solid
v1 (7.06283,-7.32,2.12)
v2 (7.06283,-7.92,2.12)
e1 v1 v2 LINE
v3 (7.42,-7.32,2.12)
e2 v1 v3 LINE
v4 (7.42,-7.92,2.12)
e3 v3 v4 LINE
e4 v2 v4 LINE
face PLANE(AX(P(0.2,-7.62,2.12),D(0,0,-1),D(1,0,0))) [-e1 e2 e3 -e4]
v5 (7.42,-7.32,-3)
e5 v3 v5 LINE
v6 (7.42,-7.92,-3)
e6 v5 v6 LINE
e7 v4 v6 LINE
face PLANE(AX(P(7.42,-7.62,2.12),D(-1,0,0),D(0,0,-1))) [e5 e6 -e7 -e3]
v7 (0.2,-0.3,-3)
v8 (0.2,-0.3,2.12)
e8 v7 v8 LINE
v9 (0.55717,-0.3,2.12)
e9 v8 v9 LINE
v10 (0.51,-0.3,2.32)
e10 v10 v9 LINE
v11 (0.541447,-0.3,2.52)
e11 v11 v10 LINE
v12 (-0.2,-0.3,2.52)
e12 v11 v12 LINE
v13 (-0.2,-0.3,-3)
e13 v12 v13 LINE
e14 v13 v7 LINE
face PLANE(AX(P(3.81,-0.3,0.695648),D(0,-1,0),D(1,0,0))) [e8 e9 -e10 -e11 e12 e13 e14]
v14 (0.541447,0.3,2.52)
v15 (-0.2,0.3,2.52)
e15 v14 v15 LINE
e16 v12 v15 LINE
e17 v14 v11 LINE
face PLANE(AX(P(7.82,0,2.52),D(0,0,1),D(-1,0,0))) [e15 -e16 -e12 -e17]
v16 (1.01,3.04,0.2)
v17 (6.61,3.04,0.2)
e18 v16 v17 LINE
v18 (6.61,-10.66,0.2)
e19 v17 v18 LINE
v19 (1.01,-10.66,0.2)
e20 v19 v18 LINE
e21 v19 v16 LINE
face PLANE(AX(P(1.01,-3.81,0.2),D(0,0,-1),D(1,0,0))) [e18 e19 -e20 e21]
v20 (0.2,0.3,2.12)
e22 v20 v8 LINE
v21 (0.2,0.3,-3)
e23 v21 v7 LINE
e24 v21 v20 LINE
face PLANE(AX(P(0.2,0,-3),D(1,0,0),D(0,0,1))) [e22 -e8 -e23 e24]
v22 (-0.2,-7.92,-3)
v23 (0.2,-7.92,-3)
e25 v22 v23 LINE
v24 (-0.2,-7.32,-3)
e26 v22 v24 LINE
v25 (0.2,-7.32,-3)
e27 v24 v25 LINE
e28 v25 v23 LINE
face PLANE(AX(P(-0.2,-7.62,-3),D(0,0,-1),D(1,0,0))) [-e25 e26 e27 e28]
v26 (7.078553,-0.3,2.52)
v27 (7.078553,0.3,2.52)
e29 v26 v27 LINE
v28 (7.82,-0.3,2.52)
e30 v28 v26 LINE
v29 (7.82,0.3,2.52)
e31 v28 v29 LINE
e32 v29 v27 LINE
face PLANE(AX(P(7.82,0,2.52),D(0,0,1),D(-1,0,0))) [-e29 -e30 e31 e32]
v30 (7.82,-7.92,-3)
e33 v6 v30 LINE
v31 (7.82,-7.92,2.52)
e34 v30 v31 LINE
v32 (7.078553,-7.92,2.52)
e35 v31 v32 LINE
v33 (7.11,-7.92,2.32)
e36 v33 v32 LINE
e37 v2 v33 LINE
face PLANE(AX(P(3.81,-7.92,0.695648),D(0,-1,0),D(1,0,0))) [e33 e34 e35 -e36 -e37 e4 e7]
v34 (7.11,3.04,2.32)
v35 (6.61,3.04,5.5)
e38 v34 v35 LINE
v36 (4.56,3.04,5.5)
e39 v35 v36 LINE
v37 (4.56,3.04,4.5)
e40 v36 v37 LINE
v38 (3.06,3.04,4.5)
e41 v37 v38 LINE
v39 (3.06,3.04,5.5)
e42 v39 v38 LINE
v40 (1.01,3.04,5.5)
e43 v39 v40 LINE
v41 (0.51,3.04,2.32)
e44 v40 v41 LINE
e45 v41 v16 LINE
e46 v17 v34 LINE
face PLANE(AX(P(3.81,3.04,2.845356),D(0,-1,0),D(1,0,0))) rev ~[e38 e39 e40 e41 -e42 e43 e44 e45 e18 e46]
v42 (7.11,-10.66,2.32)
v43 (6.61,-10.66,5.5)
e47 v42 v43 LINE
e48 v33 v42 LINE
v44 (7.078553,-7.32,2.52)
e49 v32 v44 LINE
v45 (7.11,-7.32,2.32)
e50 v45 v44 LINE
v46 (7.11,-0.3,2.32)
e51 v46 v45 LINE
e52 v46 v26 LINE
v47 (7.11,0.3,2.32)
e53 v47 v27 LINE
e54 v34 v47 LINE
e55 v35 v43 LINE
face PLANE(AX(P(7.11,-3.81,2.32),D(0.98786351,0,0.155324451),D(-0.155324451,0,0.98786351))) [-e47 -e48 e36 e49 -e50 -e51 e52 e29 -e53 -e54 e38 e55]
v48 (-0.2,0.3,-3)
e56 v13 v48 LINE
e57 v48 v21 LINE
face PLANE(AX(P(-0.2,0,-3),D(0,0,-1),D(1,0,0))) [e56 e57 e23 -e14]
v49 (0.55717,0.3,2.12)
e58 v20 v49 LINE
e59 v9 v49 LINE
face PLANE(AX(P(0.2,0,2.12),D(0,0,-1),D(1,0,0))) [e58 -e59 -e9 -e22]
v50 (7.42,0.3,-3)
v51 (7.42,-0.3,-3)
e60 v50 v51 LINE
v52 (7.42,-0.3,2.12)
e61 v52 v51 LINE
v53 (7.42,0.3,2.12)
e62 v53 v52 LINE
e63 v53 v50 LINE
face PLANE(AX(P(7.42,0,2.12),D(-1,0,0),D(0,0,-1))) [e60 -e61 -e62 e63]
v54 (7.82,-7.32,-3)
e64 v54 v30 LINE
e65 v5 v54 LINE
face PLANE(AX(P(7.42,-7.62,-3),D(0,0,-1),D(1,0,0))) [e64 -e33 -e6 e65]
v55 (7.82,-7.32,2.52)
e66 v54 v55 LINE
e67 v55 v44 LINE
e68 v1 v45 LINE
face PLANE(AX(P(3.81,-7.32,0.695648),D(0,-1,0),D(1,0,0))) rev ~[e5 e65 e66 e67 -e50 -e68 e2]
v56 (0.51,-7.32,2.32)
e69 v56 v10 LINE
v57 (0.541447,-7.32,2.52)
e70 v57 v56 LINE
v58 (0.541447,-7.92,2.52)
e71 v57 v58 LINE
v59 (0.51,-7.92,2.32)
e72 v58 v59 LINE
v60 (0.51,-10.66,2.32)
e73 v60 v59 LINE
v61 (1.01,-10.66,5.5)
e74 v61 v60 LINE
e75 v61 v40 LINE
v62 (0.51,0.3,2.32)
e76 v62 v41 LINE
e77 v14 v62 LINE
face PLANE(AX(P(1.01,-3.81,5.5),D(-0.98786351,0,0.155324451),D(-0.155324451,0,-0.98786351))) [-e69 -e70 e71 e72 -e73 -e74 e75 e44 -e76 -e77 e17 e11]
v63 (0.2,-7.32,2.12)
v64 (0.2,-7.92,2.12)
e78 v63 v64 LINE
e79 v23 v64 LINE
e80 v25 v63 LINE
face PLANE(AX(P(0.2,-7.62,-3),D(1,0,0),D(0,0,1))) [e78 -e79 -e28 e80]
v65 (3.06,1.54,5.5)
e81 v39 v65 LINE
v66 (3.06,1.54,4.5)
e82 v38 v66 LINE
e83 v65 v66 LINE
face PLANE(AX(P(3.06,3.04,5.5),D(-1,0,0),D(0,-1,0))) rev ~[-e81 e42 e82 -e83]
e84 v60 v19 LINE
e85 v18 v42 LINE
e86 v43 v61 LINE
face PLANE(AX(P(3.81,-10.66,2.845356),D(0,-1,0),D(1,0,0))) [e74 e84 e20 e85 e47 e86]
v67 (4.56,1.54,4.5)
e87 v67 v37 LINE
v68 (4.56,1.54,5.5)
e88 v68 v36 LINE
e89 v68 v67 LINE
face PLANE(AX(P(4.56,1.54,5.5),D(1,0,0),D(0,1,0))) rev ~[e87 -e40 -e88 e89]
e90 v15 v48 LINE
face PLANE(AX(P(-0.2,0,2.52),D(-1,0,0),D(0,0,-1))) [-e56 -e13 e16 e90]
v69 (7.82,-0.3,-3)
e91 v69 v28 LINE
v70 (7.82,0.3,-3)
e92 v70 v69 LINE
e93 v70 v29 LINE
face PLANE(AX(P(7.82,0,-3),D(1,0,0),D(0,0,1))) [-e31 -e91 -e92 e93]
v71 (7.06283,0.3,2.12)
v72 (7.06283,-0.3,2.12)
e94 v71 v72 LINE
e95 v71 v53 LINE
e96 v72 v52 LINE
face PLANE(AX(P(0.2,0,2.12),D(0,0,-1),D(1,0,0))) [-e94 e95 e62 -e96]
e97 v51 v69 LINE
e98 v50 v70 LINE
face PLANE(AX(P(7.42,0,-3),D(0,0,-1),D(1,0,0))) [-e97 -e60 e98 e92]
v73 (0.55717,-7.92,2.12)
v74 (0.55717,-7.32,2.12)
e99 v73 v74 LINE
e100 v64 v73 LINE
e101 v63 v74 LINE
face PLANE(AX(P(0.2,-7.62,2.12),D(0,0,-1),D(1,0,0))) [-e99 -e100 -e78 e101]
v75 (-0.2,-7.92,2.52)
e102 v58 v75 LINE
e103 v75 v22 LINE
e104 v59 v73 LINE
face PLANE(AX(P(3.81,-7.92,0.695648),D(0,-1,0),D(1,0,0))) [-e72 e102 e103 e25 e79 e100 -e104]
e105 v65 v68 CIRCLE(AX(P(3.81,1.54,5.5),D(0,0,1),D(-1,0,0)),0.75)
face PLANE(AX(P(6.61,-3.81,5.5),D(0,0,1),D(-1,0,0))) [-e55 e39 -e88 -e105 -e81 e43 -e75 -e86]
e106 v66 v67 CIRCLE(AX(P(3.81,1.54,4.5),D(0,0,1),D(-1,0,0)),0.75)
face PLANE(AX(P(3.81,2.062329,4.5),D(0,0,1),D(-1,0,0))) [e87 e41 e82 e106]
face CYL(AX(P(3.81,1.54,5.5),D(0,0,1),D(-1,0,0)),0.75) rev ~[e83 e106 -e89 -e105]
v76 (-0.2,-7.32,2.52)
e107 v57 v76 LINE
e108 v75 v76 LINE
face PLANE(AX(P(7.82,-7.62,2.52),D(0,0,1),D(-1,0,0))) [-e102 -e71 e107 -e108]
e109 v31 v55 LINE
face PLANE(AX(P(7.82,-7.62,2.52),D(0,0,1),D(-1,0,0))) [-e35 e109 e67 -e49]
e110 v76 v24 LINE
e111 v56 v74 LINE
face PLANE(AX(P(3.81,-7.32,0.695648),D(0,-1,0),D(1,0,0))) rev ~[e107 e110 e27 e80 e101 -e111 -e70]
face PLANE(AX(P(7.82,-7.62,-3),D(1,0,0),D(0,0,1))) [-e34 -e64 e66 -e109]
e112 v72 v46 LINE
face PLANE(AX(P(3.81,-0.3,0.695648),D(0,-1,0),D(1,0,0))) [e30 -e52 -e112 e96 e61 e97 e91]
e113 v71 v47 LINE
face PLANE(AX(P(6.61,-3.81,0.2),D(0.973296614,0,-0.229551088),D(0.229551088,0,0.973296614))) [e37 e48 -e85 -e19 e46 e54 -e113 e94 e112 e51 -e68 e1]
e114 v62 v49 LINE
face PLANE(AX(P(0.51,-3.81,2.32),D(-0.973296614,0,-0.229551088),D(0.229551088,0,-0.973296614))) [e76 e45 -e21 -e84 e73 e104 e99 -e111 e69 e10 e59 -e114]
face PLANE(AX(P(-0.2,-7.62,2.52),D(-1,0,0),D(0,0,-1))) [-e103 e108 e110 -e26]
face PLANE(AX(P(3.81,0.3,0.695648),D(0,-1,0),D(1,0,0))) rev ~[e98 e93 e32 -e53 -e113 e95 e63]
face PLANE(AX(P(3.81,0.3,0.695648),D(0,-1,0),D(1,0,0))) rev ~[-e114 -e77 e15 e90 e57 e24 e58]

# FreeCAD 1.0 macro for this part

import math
import FreeCAD as App
import Part
import Sketcher
from FreeCAD import Vector

doc = App.newDocument("Part")
body = doc.addObject("PartDesign::Body", "Body")

# Sketch on XZ plane
sketch1 = doc.addObject("Sketcher::SketchObject", "Sketch")
body.addObject(sketch1)
sketch1.AttachmentSupport = (doc.XZ_Plane, [""])
sketch1.MapMode = "FlatFace"
sketch1.AttachmentOffset = App.Placement(Vector(0, 0, 7.62), App.Rotation())
sketch1.addGeometry(Part.LineSegment(Vector(-0.2, -3, 0), Vector(0.2, -3, 0)), False)
sketch1.addGeometry(Part.LineSegment(Vector(0.2, -3, 0), Vector(0.2, 2.12, 0)), False)
sketch1.addGeometry(Part.LineSegment(Vector(0.2, 2.12, 0), Vector(7.42, 2.12, 0)), False)
sketch1.addGeometry(Part.LineSegment(Vector(7.42, 2.12, 0), Vector(7.42, -3, 0)), False)
sketch1.addGeometry(Part.LineSegment(Vector(7.42, -3, 0), Vector(7.82, -3, 0)), False)
sketch1.addGeometry(Part.LineSegment(Vector(7.82, -3, 0), Vector(7.82, 2.52, 0)), False)
sketch1.addGeometry(Part.LineSegment(Vector(7.82, 2.52, 0), Vector(-0.2, 2.52, 0)), False)
sketch1.addGeometry(Part.LineSegment(Vector(-0.2, 2.52, 0), Vector(-0.2, -3, 0)), False)
sketch1.addConstraint(Sketcher.Constraint("Coincident", 0, 2, 1, 1))
sketch1.addConstraint(Sketcher.Constraint("Coincident", 1, 2, 2, 1))
sketch1.addConstraint(Sketcher.Constraint("Coincident", 2, 2, 3, 1))
sketch1.addConstraint(Sketcher.Constraint("Coincident", 3, 2, 4, 1))
sketch1.addConstraint(Sketcher.Constraint("Coincident", 4, 2, 5, 1))
sketch1.addConstraint(Sketcher.Constraint("Coincident", 5, 2, 6, 1))
sketch1.addConstraint(Sketcher.Constraint("Coincident", 6, 2, 7, 1))
sketch1.addConstraint(Sketcher.Constraint("Coincident", 7, 2, 0, 1))
sketch1.addConstraint(Sketcher.Constraint("Horizontal", 0))
sketch1.addConstraint(Sketcher.Constraint("Vertical", 1))
sketch1.addConstraint(Sketcher.Constraint("Horizontal", 2))
sketch1.addConstraint(Sketcher.Constraint("Vertical", 3))
sketch1.addConstraint(Sketcher.Constraint("Horizontal", 4))
sketch1.addConstraint(Sketcher.Constraint("Vertical", 5))
sketch1.addConstraint(Sketcher.Constraint("Horizontal", 6))
sketch1.addConstraint(Sketcher.Constraint("Vertical", 7))
sketch1.addConstraint(Sketcher.Constraint("Horizontal", 0, 2, 3, 2))
sketch1.addConstraint(Sketcher.Constraint("Equal", 0, 4))
sketch1.addConstraint(Sketcher.Constraint("DistanceX", 0, 1, 0, 2, 0.4))
sketch1.addConstraint(Sketcher.Constraint("DistanceY", 0, 2, -1, 1, 3.0))
sketch1.addConstraint(Sketcher.Constraint("DistanceX", 2, 1, 2, 2, 7.22))
sketch1.addConstraint(Sketcher.Constraint("DistanceY", 1, 1, 1, 2, 5.12))
sketch1.addConstraint(Sketcher.Constraint("DistanceY", 5, 1, 5, 2, 5.52))
sketch1.addConstraint(Sketcher.Constraint("DistanceX", -1, 1, 0, 2, 0.2))
pad1 = doc.addObject("PartDesign::Pad", "Pad")
body.addObject(pad1)
pad1.Profile = sketch1
pad1.Length = 0.6
pad1.Midplane = True
body2 = doc.addObject("PartDesign::Body", "Body001")

# Sketch on XZ plane
sketch2 = doc.addObject("Sketcher::SketchObject", "Sketch001")
body2.addObject(sketch2)
sketch2.AttachmentSupport = (doc.getObject("XZ_Plane001"), [""])
sketch2.MapMode = "FlatFace"
sketch2.AttachmentOffset = App.Placement(Vector(0, 0, 3.81), App.Rotation())
sketch2.addGeometry(Part.LineSegment(Vector(1, 0.2, 0), Vector(6.6, 0.2, 0)), False)
sketch2.addGeometry(Part.LineSegment(Vector(6.6, 0.2, 0), Vector(7.1, 2.3, 0)), False)
sketch2.addGeometry(Part.LineSegment(Vector(7.1, 2.3, 0), Vector(6.6, 5.5, 0)), False)
sketch2.addGeometry(Part.LineSegment(Vector(6.6, 5.5, 0), Vector(1, 5.5, 0)), False)
sketch2.addGeometry(Part.LineSegment(Vector(1, 5.5, 0), Vector(0.5, 2.3, 0)), False)
sketch2.addGeometry(Part.LineSegment(Vector(0.5, 2.3, 0), Vector(1, 0.2, 0)), False)
sketch2.addConstraint(Sketcher.Constraint("Coincident", 0, 2, 1, 1))
sketch2.addConstraint(Sketcher.Constraint("Coincident", 1, 2, 2, 1))
sketch2.addConstraint(Sketcher.Constraint("Coincident", 2, 2, 3, 1))
sketch2.addConstraint(Sketcher.Constraint("Coincident", 3, 2, 4, 1))
sketch2.addConstraint(Sketcher.Constraint("Coincident", 4, 2, 5, 1))
sketch2.addConstraint(Sketcher.Constraint("Coincident", 5, 2, 0, 1))
sketch2.addConstraint(Sketcher.Constraint("Horizontal", 0))
sketch2.addConstraint(Sketcher.Constraint("Horizontal", 3))
sketch2.addConstraint(Sketcher.Constraint("Horizontal", 1, 2, 4, 2))
sketch2.addConstraint(Sketcher.Constraint("Vertical", 0, 2, 2, 2))
sketch2.addConstraint(Sketcher.Constraint("Vertical", 3, 2, 5, 2))
sketch2.addConstraint(Sketcher.Constraint("Equal", 2, 4))
sketch2.addConstraint(Sketcher.Constraint("DistanceX", 0, 1, 0, 2, 5.6))
sketch2.addConstraint(Sketcher.Constraint("DistanceY", -1, 1, 0, 2, 0.2))
sketch2.addConstraint(Sketcher.Constraint("DistanceY", -1, 1, 2, 2, 5.5))
sketch2.addConstraint(Sketcher.Constraint("DistanceX", 0, 2, 1, 2, 0.5))
sketch2.addConstraint(Sketcher.Constraint("DistanceX", -1, 1, 0, 2, 6.61))
sketch2.addConstraint(Sketcher.Constraint("DistanceY", -1, 1, 1, 2, 2.32))
pad2 = doc.addObject("PartDesign::Pad", "Pad001")
body2.addObject(pad2)
pad2.Profile = sketch2
pad2.Length = 13.7
pad2.Midplane = True

# Sketch on XY plane
sketch3 = doc.addObject("Sketcher::SketchObject", "Sketch002")
body2.addObject(sketch3)
sketch3.AttachmentSupport = (doc.getObject("XY_Plane001"), [""])
sketch3.MapMode = "FlatFace"
sketch3.AttachmentOffset = App.Placement(Vector(0, 0, 5.5), App.Rotation())
sketch3.addGeometry(Part.ArcOfCircle(Part.Circle(Vector(3.8, 1.5, 0), Vector(0, 0, 1), 0.8), math.radians(180), math.radians(360)), False)
sketch3.addGeometry(Part.LineSegment(Vector(4.6, 1.5, 0), Vector(4.6, 3, 0)), False)
sketch3.addGeometry(Part.LineSegment(Vector(4.6, 3, 0), Vector(3.1, 3, 0)), False)
sketch3.addGeometry(Part.LineSegment(Vector(3.1, 3, 0), Vector(3.1, 1.5, 0)), False)
sketch3.addConstraint(Sketcher.Constraint("Tangent", 0, 2, 1, 1))
sketch3.addConstraint(Sketcher.Constraint("Coincident", 1, 2, 2, 1))
sketch3.addConstraint(Sketcher.Constraint("Coincident", 2, 2, 3, 1))
sketch3.addConstraint(Sketcher.Constraint("Tangent", 3, 2, 0, 1))
sketch3.addConstraint(Sketcher.Constraint("Vertical", 1))
sketch3.addConstraint(Sketcher.Constraint("Horizontal", 2))
sketch3.addConstraint(Sketcher.Constraint("Vertical", 3))
sketch3.addConstraint(Sketcher.Constraint("Equal", 2, 1))
sketch3.addConstraint(Sketcher.Constraint("Radius", 0, 0.75))
sketch3.addConstraint(Sketcher.Constraint("DistanceX", -1, 1, 0, 3, 3.81))
sketch3.addConstraint(Sketcher.Constraint("DistanceY", -1, 1, 0, 3, 1.54))
pocket1 = doc.addObject("PartDesign::Pocket", "Pocket")
body2.addObject(pocket1)
pocket1.Profile = sketch3
pocket1.Length = 1
body3 = doc.addObject("PartDesign::Body", "Body002")
body3.AllowCompound = True

# Sketch on XZ plane
sketch4 = doc.addObject("Sketcher::SketchObject", "Sketch003")
body3.addObject(sketch4)
sketch4.AttachmentSupport = (doc.getObject("XZ_Plane002"), [""])
sketch4.MapMode = "FlatFace"
sketch4.addGeometry(Part.LineSegment(Vector(-0.2, -3, 0), Vector(0.2, -3, 0)), False)
sketch4.addGeometry(Part.LineSegment(Vector(0.2, -3, 0), Vector(0.2, 2.12, 0)), False)
sketch4.addGeometry(Part.LineSegment(Vector(0.2, 2.12, 0), Vector(7.42, 2.12, 0)), False)
sketch4.addGeometry(Part.LineSegment(Vector(7.42, 2.12, 0), Vector(7.42, -3, 0)), False)
sketch4.addGeometry(Part.LineSegment(Vector(7.42, -3, 0), Vector(7.82, -3, 0)), False)
sketch4.addGeometry(Part.LineSegment(Vector(7.82, -3, 0), Vector(7.82, 2.52, 0)), False)
sketch4.addGeometry(Part.LineSegment(Vector(7.82, 2.52, 0), Vector(-0.2, 2.52, 0)), False)
sketch4.addGeometry(Part.LineSegment(Vector(-0.2, 2.52, 0), Vector(-0.2, -3, 0)), False)
sketch4.addConstraint(Sketcher.Constraint("Coincident", 0, 2, 1, 1))
sketch4.addConstraint(Sketcher.Constraint("Coincident", 1, 2, 2, 1))
sketch4.addConstraint(Sketcher.Constraint("Coincident", 2, 2, 3, 1))
sketch4.addConstraint(Sketcher.Constraint("Coincident", 3, 2, 4, 1))
sketch4.addConstraint(Sketcher.Constraint("Coincident", 4, 2, 5, 1))
sketch4.addConstraint(Sketcher.Constraint("Coincident", 5, 2, 6, 1))
sketch4.addConstraint(Sketcher.Constraint("Coincident", 6, 2, 7, 1))
sketch4.addConstraint(Sketcher.Constraint("Coincident", 7, 2, 0, 1))
sketch4.addConstraint(Sketcher.Constraint("Horizontal", 0))
sketch4.addConstraint(Sketcher.Constraint("Vertical", 1))
sketch4.addConstraint(Sketcher.Constraint("Horizontal", 2))
sketch4.addConstraint(Sketcher.Constraint("Vertical", 3))
sketch4.addConstraint(Sketcher.Constraint("Horizontal", 4))
sketch4.addConstraint(Sketcher.Constraint("Vertical", 5))
sketch4.addConstraint(Sketcher.Constraint("Horizontal", 6))
sketch4.addConstraint(Sketcher.Constraint("Vertical", 7))
sketch4.addConstraint(Sketcher.Constraint("Horizontal", 0, 2, 3, 2))
sketch4.addConstraint(Sketcher.Constraint("Equal", 0, 4))
sketch4.addConstraint(Sketcher.Constraint("DistanceX", 0, 1, 0, 2, 0.4))
sketch4.addConstraint(Sketcher.Constraint("DistanceY", 0, 2, -1, 1, 3.0))
sketch4.addConstraint(Sketcher.Constraint("DistanceX", 2, 1, 2, 2, 7.22))
sketch4.addConstraint(Sketcher.Constraint("DistanceY", 1, 1, 1, 2, 5.12))
sketch4.addConstraint(Sketcher.Constraint("DistanceY", 5, 1, 5, 2, 5.52))
sketch4.addConstraint(Sketcher.Constraint("DistanceX", -1, 1, 0, 2, 0.2))
pad3 = doc.addObject("PartDesign::Pad", "Pad002")
body3.addObject(pad3)
pad3.Profile = sketch4
pad3.Length = 0.6
pad3.Midplane = True
doc.recompute()

boolean = doc.addObject("PartDesign::Boolean", "Boolean")
body3.addObject(boolean)
boolean.Type = "Fuse"
boolean.addObjects([body])
doc.recompute()

boolean2 = doc.addObject("PartDesign::Boolean", "Boolean001")
body3.addObject(boolean2)
boolean2.Type = "Fuse"
boolean2.addObjects([body2])

doc.recompute()
